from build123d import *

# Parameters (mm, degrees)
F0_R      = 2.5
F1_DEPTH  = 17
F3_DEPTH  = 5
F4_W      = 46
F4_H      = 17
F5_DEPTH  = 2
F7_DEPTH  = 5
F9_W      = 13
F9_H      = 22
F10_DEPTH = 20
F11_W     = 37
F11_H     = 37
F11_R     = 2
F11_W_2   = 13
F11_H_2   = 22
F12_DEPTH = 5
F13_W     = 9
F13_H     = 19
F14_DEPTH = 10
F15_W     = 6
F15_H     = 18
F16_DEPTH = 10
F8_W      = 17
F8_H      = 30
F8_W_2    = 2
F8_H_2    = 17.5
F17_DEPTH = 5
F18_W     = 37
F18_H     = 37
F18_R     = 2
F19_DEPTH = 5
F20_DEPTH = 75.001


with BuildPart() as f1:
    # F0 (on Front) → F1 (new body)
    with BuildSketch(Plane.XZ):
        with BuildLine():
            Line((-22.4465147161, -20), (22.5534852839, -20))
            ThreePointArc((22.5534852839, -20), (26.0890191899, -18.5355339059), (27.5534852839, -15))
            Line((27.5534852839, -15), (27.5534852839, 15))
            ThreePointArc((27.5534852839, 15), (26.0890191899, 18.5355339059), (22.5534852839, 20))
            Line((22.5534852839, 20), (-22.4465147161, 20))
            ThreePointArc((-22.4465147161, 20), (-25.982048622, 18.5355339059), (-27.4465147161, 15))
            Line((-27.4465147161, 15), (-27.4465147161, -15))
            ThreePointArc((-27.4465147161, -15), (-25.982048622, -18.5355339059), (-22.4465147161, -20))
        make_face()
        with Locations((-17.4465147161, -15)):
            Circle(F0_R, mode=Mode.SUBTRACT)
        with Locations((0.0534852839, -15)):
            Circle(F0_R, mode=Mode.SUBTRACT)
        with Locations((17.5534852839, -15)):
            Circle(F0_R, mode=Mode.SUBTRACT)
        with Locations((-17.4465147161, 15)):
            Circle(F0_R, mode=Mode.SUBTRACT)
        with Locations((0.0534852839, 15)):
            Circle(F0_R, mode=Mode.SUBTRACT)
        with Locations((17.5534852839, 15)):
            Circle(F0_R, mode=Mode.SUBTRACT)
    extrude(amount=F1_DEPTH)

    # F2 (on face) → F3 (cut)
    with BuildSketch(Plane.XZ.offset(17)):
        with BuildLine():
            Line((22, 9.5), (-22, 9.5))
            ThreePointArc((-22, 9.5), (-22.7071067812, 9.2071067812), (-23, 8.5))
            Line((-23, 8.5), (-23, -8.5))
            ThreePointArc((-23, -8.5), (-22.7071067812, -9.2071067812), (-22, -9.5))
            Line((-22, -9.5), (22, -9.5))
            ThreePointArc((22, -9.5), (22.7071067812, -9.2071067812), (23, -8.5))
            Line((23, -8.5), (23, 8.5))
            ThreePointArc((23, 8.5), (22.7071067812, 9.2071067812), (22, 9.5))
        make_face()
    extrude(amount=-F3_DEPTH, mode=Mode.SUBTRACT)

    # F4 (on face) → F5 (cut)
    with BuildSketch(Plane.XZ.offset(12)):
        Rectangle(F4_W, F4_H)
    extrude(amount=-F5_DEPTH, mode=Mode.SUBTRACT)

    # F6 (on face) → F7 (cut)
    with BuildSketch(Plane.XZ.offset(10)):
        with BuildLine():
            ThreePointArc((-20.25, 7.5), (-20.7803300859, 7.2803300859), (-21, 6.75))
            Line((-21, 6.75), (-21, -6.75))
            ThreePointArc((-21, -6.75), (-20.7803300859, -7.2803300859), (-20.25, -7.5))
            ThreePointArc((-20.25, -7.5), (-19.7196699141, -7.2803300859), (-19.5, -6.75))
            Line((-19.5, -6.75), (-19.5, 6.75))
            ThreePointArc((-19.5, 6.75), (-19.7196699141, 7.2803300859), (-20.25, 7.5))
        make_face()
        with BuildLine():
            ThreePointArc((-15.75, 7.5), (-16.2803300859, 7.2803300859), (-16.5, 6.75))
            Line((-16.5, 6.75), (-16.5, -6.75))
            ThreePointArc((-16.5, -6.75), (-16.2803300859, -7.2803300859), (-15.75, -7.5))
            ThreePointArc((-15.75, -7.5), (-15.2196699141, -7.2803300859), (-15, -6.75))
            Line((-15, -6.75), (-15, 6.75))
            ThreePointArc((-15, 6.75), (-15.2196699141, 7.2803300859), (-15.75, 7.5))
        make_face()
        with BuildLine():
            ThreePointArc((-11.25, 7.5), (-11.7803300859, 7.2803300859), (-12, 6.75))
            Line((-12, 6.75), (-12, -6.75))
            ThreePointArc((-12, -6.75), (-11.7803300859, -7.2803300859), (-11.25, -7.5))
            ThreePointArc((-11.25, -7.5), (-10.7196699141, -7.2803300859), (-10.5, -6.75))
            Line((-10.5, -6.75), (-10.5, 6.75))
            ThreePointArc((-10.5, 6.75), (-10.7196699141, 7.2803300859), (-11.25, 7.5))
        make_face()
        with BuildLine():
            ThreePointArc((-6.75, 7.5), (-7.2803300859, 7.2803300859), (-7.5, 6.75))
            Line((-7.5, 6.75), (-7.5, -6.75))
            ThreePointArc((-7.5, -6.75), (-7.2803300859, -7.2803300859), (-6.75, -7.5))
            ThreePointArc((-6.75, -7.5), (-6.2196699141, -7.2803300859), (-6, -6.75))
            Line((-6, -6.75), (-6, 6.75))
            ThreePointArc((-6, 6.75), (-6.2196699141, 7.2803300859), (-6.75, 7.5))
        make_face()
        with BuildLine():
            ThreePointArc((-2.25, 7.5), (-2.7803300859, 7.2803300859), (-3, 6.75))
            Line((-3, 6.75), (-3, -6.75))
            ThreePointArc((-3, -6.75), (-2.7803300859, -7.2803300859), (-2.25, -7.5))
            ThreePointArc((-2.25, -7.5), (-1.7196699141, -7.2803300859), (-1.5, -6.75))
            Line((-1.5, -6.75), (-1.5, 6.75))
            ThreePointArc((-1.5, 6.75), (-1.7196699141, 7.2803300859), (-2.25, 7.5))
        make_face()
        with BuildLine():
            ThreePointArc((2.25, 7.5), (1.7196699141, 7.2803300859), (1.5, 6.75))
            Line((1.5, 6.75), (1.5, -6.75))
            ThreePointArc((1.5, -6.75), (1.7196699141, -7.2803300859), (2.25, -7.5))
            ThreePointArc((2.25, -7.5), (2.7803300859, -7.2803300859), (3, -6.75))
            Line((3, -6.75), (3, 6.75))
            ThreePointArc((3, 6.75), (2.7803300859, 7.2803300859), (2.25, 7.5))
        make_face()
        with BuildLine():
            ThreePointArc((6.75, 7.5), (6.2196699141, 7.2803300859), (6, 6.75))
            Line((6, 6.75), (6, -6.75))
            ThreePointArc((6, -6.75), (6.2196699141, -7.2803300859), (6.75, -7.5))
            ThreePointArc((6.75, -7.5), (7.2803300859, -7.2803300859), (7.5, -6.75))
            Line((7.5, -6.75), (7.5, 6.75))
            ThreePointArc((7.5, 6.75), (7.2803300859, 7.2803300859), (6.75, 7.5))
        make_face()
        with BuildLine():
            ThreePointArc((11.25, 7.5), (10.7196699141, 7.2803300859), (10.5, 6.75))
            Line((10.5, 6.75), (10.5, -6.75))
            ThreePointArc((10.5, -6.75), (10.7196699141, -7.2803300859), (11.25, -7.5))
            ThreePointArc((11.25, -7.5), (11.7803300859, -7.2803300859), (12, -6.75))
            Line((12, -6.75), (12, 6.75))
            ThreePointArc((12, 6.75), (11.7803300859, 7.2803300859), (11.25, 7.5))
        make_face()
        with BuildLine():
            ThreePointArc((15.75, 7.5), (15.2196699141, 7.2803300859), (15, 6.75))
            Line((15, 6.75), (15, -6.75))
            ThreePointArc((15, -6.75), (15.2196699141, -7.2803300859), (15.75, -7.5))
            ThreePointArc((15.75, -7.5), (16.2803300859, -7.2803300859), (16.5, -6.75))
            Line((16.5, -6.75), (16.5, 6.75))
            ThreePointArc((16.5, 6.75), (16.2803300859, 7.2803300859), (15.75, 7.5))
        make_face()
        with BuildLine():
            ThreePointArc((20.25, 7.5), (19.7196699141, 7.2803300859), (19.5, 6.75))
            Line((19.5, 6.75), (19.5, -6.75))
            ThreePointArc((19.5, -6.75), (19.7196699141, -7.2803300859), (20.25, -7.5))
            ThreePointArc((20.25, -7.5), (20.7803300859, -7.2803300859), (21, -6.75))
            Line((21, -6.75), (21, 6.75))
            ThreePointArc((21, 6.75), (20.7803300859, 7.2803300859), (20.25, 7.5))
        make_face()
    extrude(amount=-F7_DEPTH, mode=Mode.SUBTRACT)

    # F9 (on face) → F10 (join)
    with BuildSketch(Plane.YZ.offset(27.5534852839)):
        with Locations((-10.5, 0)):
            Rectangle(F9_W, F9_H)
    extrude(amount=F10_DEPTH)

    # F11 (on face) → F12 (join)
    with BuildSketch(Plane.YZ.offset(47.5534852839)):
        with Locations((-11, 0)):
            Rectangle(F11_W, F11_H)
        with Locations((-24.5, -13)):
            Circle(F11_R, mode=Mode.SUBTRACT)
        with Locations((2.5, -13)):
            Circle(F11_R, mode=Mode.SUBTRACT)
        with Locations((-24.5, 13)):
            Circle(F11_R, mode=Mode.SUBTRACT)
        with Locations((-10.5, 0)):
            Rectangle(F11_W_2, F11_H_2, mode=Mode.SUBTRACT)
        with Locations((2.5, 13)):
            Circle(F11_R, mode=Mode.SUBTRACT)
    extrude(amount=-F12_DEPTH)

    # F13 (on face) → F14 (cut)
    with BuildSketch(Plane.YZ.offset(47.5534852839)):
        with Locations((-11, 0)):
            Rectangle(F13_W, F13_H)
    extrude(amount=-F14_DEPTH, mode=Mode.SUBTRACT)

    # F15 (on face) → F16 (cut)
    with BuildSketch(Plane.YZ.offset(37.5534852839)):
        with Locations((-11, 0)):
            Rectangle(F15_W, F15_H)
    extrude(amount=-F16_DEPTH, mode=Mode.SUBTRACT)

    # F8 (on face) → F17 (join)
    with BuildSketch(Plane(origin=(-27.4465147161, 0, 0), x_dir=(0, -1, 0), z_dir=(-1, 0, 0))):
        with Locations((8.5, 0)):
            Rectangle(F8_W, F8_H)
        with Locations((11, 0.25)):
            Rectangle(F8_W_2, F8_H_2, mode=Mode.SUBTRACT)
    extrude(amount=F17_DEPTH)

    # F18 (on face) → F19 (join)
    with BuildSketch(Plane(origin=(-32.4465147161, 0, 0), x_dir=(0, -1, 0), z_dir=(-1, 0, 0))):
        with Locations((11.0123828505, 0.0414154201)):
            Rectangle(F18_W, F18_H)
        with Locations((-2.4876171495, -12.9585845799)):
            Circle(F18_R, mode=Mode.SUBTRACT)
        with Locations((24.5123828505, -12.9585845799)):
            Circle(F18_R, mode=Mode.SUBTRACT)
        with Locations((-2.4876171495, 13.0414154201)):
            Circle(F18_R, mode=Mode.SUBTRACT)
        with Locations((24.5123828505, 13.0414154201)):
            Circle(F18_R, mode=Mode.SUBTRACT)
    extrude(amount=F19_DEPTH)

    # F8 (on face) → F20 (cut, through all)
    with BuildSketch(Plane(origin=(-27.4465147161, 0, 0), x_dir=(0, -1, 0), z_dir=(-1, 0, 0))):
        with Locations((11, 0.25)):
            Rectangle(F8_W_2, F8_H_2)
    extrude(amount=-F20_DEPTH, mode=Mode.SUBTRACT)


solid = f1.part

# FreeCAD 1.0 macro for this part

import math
import FreeCAD as App
import Part
import Sketcher

V = App.Vector
Q = App.Units.Quantity


def add_polygon(sketch, points):
    """Adds a closed chain of lines whose ends are joined by coincident constraints."""
    first, n = sketch.GeometryCount, len(points)
    for a, b in zip(points, points[1:] + points[:1]):
        sketch.addGeometry(Part.LineSegment(App.Vector(*a, 0), App.Vector(*b, 0)), False)
    for i in range(n):
        sketch.addConstraint(Sketcher.Constraint("Coincident", first + i, 2, first + (i + 1) % n, 1))

doc = App.newDocument("Part")
params = doc.addObject("Spreadsheet::Sheet", "Params")
for row, (alias, value) in enumerate([
    ("sketch1_diameter", "5 mm"),
    ("sketch1_radius", "5 mm"),
    ("sketch1_width", "45 mm"),
    ("sketch1_height", "30 mm"),
    ("pad1_length", "17 mm"),
    ("sketch2_radius", "1 mm"),
    ("sketch2_width", "44 mm"),
    ("sketch2_height", "17 mm"),
    ("pocket1_length", "5 mm"),
    ("sketch3_width", "46 mm"),
    ("sketch3_height", "17 mm"),
    ("pocket2_length", "2 mm"),
    ("sketch4_radius", "0.75 mm"),
    ("sketch4_height", "13.5 mm"),
    ("pocket3_length", "5 mm"),
    ("sketch5_width", "13 mm"),
    ("sketch5_height", "22 mm"),
    ("pad2_length", "20 mm"),
    ("sketch6_diameter", "4 mm"),
    ("sketch6_width", "37 mm"),
    ("sketch6_width2", "13 mm"),
    ("sketch6_height", "22 mm"),
    ("pad3_length", "5 mm"),
    ("sketch7_width", "9 mm"),
    ("sketch7_height", "19 mm"),
    ("pocket4_length", "10 mm"),
    ("sketch8_width", "6 mm"),
    ("sketch8_height", "18 mm"),
    ("pocket5_length", "10 mm"),
    ("sketch9_width", "17 mm"),
    ("sketch9_width2", "2 mm"),
    ("sketch9_height", "30 mm"),
    ("sketch9_height2", "17.5 mm"),
    ("pad4_length", "5 mm"),
    ("sketch10_diameter", "4 mm"),
    ("sketch10_width", "37 mm"),
    ("pad5_length", "5 mm"),
    ("sketch11_width", "2 mm"),
    ("sketch11_height", "17.5 mm"),
], start=1):
    params.set(f"A{row}", alias)
    params.set(f"B{row}", "=" + value)
    params.setAlias(f"B{row}", alias)

body = doc.addObject("PartDesign::Body", "Body")

sketch1 = body.newObject("Sketcher::SketchObject", "Sketch")
sketch1.AttachmentSupport = (doc.getObject("XZ_Plane"), [""])
sketch1.MapMode = "FlatFace"
sketch1.addGeometry([
    Part.LineSegment(V(-22.4, -20, 0), V(22.6, -20, 0)),
    Part.ArcOfCircle(Part.Circle(V(22.6, -15, 0), V(0, 0, 1), 5), math.radians(-90), math.radians(0)),
    Part.LineSegment(V(27.6, -15, 0), V(27.6, 15, 0)),
    Part.ArcOfCircle(Part.Circle(V(22.6, 15, 0), V(0, 0, 1), 5), math.radians(0), math.radians(90)),
    Part.LineSegment(V(22.6, 20, 0), V(-22.4, 20, 0)),
    Part.ArcOfCircle(Part.Circle(V(-22.4, 15, 0), V(0, 0, 1), 5), math.radians(90), math.radians(180)),
    Part.LineSegment(V(-27.4, 15, 0), V(-27.4, -15, 0)),
    Part.ArcOfCircle(Part.Circle(V(-22.4, -15, 0), V(0, 0, 1), 5), math.radians(180), math.radians(270)),
    Part.Circle(V(-17.4, -15, 0), V(0, 0, 1), 2.5),
    Part.Circle(V(0.1, -15, 0), V(0, 0, 1), 2.5),
    Part.Circle(V(17.6, -15, 0), V(0, 0, 1), 2.5),
    Part.Circle(V(-17.4, 15, 0), V(0, 0, 1), 2.5),
    Part.Circle(V(0.1, 15, 0), V(0, 0, 1), 2.5),
    Part.Circle(V(17.6, 15, 0), V(0, 0, 1), 2.5),
], False)
sketch1.addConstraint([
    Sketcher.Constraint("Tangent", 0, 2, 1, 1),
    Sketcher.Constraint("Tangent", 1, 2, 2, 1),
    Sketcher.Constraint("Tangent", 2, 2, 3, 1),
    Sketcher.Constraint("Tangent", 3, 2, 4, 1),
    Sketcher.Constraint("Tangent", 4, 2, 5, 1),
    Sketcher.Constraint("Tangent", 5, 2, 6, 1),
    Sketcher.Constraint("Tangent", 6, 2, 7, 1),
    Sketcher.Constraint("Tangent", 7, 2, 0, 1),
    Sketcher.Constraint("Horizontal", 0),
    Sketcher.Constraint("Vertical", 2),
    Sketcher.Constraint("Horizontal", 4),
    Sketcher.Constraint("Vertical", 6),
    Sketcher.Constraint("Equal", 1, 3),
    Sketcher.Constraint("Equal", 3, 5),
    Sketcher.Constraint("Equal", 5, 7),
    Sketcher.Constraint("Equal", 8, 9),
    Sketcher.Constraint("Equal", 9, 10),
    Sketcher.Constraint("Equal", 10, 11),
    Sketcher.Constraint("Equal", 11, 12),
    Sketcher.Constraint("Equal", 12, 13),
    Sketcher.Constraint("Symmetric", 8, 3, 11, 3, -1),
    Sketcher.Constraint("Symmetric", 9, 3, 12, 3, -1),
    Sketcher.Constraint("Symmetric", 10, 3, 13, 3, -1),
    Sketcher.Constraint("Horizontal", 7, 3, 8, 3),
    Sketcher.Constraint("Horizontal", 8, 3, 9, 3),
    Sketcher.Constraint("Horizontal", 9, 3, 10, 3),
    Sketcher.Constraint("Horizontal", 5, 3, 11, 3),
    Sketcher.Constraint("Diameter", 8, Q("5 mm")),
    Sketcher.Constraint("Radius", 1, Q("5 mm")),
    Sketcher.Constraint("DistanceX", 0, 1, 0, 2, Q("45 mm")),
    Sketcher.Constraint("DistanceY", 2, 1, 2, 2, Q("30 mm")),
    Sketcher.Constraint("DistanceX", 7, 3, 8, 3, Q("5 mm")),
    Sketcher.Constraint("DistanceX", 10, 3, 1, 3, Q("5 mm")),
    Sketcher.Constraint("DistanceX", 8, 3, 9, 3, Q("17.5 mm")),
    Sketcher.Constraint("DistanceX", -1, 1, 1, 3, Q("22.553485 mm")),
])
sketch1.setExpression("Constraints[27]", "Params.sketch1_diameter")
sketch1.setExpression("Constraints[28]", "Params.sketch1_radius")
sketch1.setExpression("Constraints[29]", "Params.sketch1_width")
sketch1.setExpression("Constraints[30]", "Params.sketch1_height")
pad1 = body.newObject("PartDesign::Pad", "Pad")
pad1.Profile = sketch1
pad1.setExpression("Length", "Params.pad1_length")

sketch2 = body.newObject("Sketcher::SketchObject", "Sketch001")
sketch2.AttachmentSupport = (doc.getObject("XZ_Plane"), [""])
sketch2.MapMode = "FlatFace"
sketch2.AttachmentOffset = App.Placement(V(0, 0, 17), App.Rotation())
sketch2.addGeometry([
    Part.LineSegment(V(22, 9.5, 0), V(-22, 9.5, 0)),
    Part.ArcOfCircle(Part.Circle(V(-22, 8.5, 0), V(0, 0, 1), 1), math.radians(90), math.radians(180)),
    Part.LineSegment(V(-23, 8.5, 0), V(-23, -8.5, 0)),
    Part.ArcOfCircle(Part.Circle(V(-22, -8.5, 0), V(0, 0, 1), 1), math.radians(180), math.radians(270)),
    Part.LineSegment(V(-22, -9.5, 0), V(22, -9.5, 0)),
    Part.ArcOfCircle(Part.Circle(V(22, -8.5, 0), V(0, 0, 1), 1), math.radians(-90), math.radians(0)),
    Part.LineSegment(V(23, -8.5, 0), V(23, 8.5, 0)),
    Part.ArcOfCircle(Part.Circle(V(22, 8.5, 0), V(0, 0, 1), 1), math.radians(0), math.radians(90)),
], False)
sketch2.addConstraint([
    Sketcher.Constraint("Tangent", 0, 2, 1, 1),
    Sketcher.Constraint("Tangent", 1, 2, 2, 1),
    Sketcher.Constraint("Tangent", 2, 2, 3, 1),
    Sketcher.Constraint("Tangent", 3, 2, 4, 1),
    Sketcher.Constraint("Tangent", 4, 2, 5, 1),
    Sketcher.Constraint("Tangent", 5, 2, 6, 1),
    Sketcher.Constraint("Tangent", 6, 2, 7, 1),
    Sketcher.Constraint("Tangent", 7, 2, 0, 1),
    Sketcher.Constraint("Horizontal", 0),
    Sketcher.Constraint("Vertical", 2),
    Sketcher.Constraint("Horizontal", 4),
    Sketcher.Constraint("Vertical", 6),
    Sketcher.Constraint("Equal", 1, 3),
    Sketcher.Constraint("Equal", 3, 5),
    Sketcher.Constraint("Equal", 5, 7),
    Sketcher.Constraint("Symmetric", 1, 3, 5, 3, -1, 1),
    Sketcher.Constraint("Radius", 1, Q("1 mm")),
    Sketcher.Constraint("DistanceX", 0, 2, 0, 1, Q("44 mm")),
    Sketcher.Constraint("DistanceY", 2, 2, 2, 1, Q("17 mm")),
])
sketch2.setExpression("Constraints[16]", "Params.sketch2_radius")
sketch2.setExpression("Constraints[17]", "Params.sketch2_width")
sketch2.setExpression("Constraints[18]", "Params.sketch2_height")
pocket1 = body.newObject("PartDesign::Pocket", "Pocket")
pocket1.Profile = sketch2
pocket1.setExpression("Length", "Params.pocket1_length")

sketch3 = body.newObject("Sketcher::SketchObject", "Sketch002")
sketch3.AttachmentSupport = (doc.getObject("XZ_Plane"), [""])
sketch3.MapMode = "FlatFace"
sketch3.AttachmentOffset = App.Placement(V(0, 0, 12), App.Rotation())
add_polygon(sketch3, [(-23, 8), (-23, -8), (23, -8), (23, 8)])
sketch3.addConstraint([
    Sketcher.Constraint("Vertical", 0),
    Sketcher.Constraint("Horizontal", 1),
    Sketcher.Constraint("Vertical", 2),
    Sketcher.Constraint("Horizontal", 3),
    Sketcher.Constraint("Symmetric", 0, 2, 2, 2, -1, 1),
    Sketcher.Constraint("DistanceX", 1, 1, 1, 2, Q("46 mm")),
    Sketcher.Constraint("DistanceY", 0, 2, 0, 1, Q("17 mm")),
])
sketch3.setExpression("Constraints[9]", "Params.sketch3_width")
sketch3.setExpression("Constraints[10]", "Params.sketch3_height")
pocket2 = body.newObject("PartDesign::Pocket", "Pocket001")
pocket2.Profile = sketch3
pocket2.setExpression("Length", "Params.pocket2_length")

sketch4 = body.newObject("Sketcher::SketchObject", "Sketch003")
sketch4.AttachmentSupport = (doc.getObject("XZ_Plane"), [""])
sketch4.MapMode = "FlatFace"
sketch4.AttachmentOffset = App.Placement(V(0, 0, 10), App.Rotation())
sketch4.addGeometry([
    Part.ArcOfCircle(Part.Circle(V(-20.2, 6.8, 0), V(0, 0, 1), 0.8), math.radians(90), math.radians(180)),
    Part.LineSegment(V(-21, 6.8, 0), V(-21, -6.8, 0)),
    Part.ArcOfCircle(Part.Circle(V(-20.2, -6.8, 0), V(0, 0, 1), 0.8), math.radians(180), math.radians(270)),
    Part.ArcOfCircle(Part.Circle(V(-20.2, -6.8, 0), V(0, 0, 1), 0.8), math.radians(-90), math.radians(0)),
    Part.LineSegment(V(-19.5, -6.8, 0), V(-19.5, 6.8, 0)),
    Part.ArcOfCircle(Part.Circle(V(-20.2, 6.8, 0), V(0, 0, 1), 0.8), math.radians(0), math.radians(90)),
    Part.ArcOfCircle(Part.Circle(V(-15.8, 6.8, 0), V(0, 0, 1), 0.8), math.radians(90), math.radians(180)),
    Part.LineSegment(V(-16.5, 6.8, 0), V(-16.5, -6.8, 0)),
    Part.ArcOfCircle(Part.Circle(V(-15.8, -6.8, 0), V(0, 0, 1), 0.8), math.radians(180), math.radians(270)),
    Part.ArcOfCircle(Part.Circle(V(-15.8, -6.8, 0), V(0, 0, 1), 0.8), math.radians(-90), math.radians(0)),
    Part.LineSegment(V(-15, -6.8, 0), V(-15, 6.8, 0)),
    Part.ArcOfCircle(Part.Circle(V(-15.8, 6.8, 0), V(0, 0, 1), 0.8), math.radians(0), math.radians(90)),
    Part.ArcOfCircle(Part.Circle(V(-11.2, 6.8, 0), V(0, 0, 1), 0.8), math.radians(90), math.radians(180)),
    Part.LineSegment(V(-12, 6.8, 0), V(-12, -6.8, 0)),
    Part.ArcOfCircle(Part.Circle(V(-11.2, -6.8, 0), V(0, 0, 1), 0.8), math.radians(180), math.radians(270)),
    Part.ArcOfCircle(Part.Circle(V(-11.2, -6.8, 0), V(0, 0, 1), 0.8), math.radians(-90), math.radians(0)),
    Part.LineSegment(V(-10.5, -6.8, 0), V(-10.5, 6.8, 0)),
    Part.ArcOfCircle(Part.Circle(V(-11.2, 6.8, 0), V(0, 0, 1), 0.8), math.radians(0), math.radians(90)),
    Part.ArcOfCircle(Part.Circle(V(-6.8, 6.8, 0), V(0, 0, 1), 0.8), math.radians(90), math.radians(180)),
    Part.LineSegment(V(-7.5, 6.8, 0), V(-7.5, -6.8, 0)),
    Part.ArcOfCircle(Part.Circle(V(-6.8, -6.8, 0), V(0, 0, 1), 0.8), math.radians(180), math.radians(270)),
    Part.ArcOfCircle(Part.Circle(V(-6.8, -6.8, 0), V(0, 0, 1), 0.8), math.radians(-90), math.radians(0)),
    Part.LineSegment(V(-6, -6.8, 0), V(-6, 6.8, 0)),
    Part.ArcOfCircle(Part.Circle(V(-6.8, 6.8, 0), V(0, 0, 1), 0.8), math.radians(0), math.radians(90)),
    Part.ArcOfCircle(Part.Circle(V(-2.2, 6.8, 0), V(0, 0, 1), 0.8), math.radians(90), math.radians(180)),
    Part.LineSegment(V(-3, 6.8, 0), V(-3, -6.8, 0)),
    Part.ArcOfCircle(Part.Circle(V(-2.2, -6.8, 0), V(0, 0, 1), 0.8), math.radians(180), math.radians(270)),
    Part.ArcOfCircle(Part.Circle(V(-2.2, -6.8, 0), V(0, 0, 1), 0.8), math.radians(-90), math.radians(0)),
    Part.LineSegment(V(-1.5, -6.8, 0), V(-1.5, 6.8, 0)),
    Part.ArcOfCircle(Part.Circle(V(-2.2, 6.8, 0), V(0, 0, 1), 0.8), math.radians(0), math.radians(90)),
    Part.ArcOfCircle(Part.Circle(V(2.2, 6.8, 0), V(0, 0, 1), 0.8), math.radians(90), math.radians(180)),
    Part.LineSegment(V(1.5, 6.8, 0), V(1.5, -6.8, 0)),
    Part.ArcOfCircle(Part.Circle(V(2.2, -6.8, 0), V(0, 0, 1), 0.8), math.radians(180), math.radians(270)),
    Part.ArcOfCircle(Part.Circle(V(2.2, -6.8, 0), V(0, 0, 1), 0.8), math.radians(-90), math.radians(0)),
    Part.LineSegment(V(3, -6.8, 0), V(3, 6.8, 0)),
    Part.ArcOfCircle(Part.Circle(V(2.2, 6.8, 0), V(0, 0, 1), 0.8), math.radians(0), math.radians(90)),
    Part.ArcOfCircle(Part.Circle(V(6.8, 6.8, 0), V(0, 0, 1), 0.8), math.radians(90), math.radians(180)),
    Part.LineSegment(V(6, 6.8, 0), V(6, -6.8, 0)),
    Part.ArcOfCircle(Part.Circle(V(6.8, -6.8, 0), V(0, 0, 1), 0.8), math.radians(180), math.radians(270)),
    Part.ArcOfCircle(Part.Circle(V(6.8, -6.8, 0), V(0, 0, 1), 0.8), math.radians(-90), math.radians(0)),
    Part.LineSegment(V(7.5, -6.8, 0), V(7.5, 6.8, 0)),
    Part.ArcOfCircle(Part.Circle(V(6.8, 6.8, 0), V(0, 0, 1), 0.8), math.radians(0), math.radians(90)),
    Part.ArcOfCircle(Part.Circle(V(11.2, 6.8, 0), V(0, 0, 1), 0.8), math.radians(90), math.radians(180)),
    Part.LineSegment(V(10.5, 6.8, 0), V(10.5, -6.8, 0)),
    Part.ArcOfCircle(Part.Circle(V(11.2, -6.8, 0), V(0, 0, 1), 0.8), math.radians(180), math.radians(270)),
    Part.ArcOfCircle(Part.Circle(V(11.2, -6.8, 0), V(0, 0, 1), 0.8), math.radians(-90), math.radians(0)),
    Part.LineSegment(V(12, -6.8, 0), V(12, 6.8, 0)),
    Part.ArcOfCircle(Part.Circle(V(11.2, 6.8, 0), V(0, 0, 1), 0.8), math.radians(0), math.radians(90)),
    Part.ArcOfCircle(Part.Circle(V(15.8, 6.8, 0), V(0, 0, 1), 0.8), math.radians(90), math.radians(180)),
    Part.LineSegment(V(15, 6.8, 0), V(15, -6.8, 0)),
    Part.ArcOfCircle(Part.Circle(V(15.8, -6.8, 0), V(0, 0, 1), 0.8), math.radians(180), math.radians(270)),
    Part.ArcOfCircle(Part.Circle(V(15.8, -6.8, 0), V(0, 0, 1), 0.8), math.radians(-90), math.radians(0)),
    Part.LineSegment(V(16.5, -6.8, 0), V(16.5, 6.8, 0)),
    Part.ArcOfCircle(Part.Circle(V(15.8, 6.8, 0), V(0, 0, 1), 0.8), math.radians(0), math.radians(90)),
    Part.ArcOfCircle(Part.Circle(V(20.2, 6.8, 0), V(0, 0, 1), 0.8), math.radians(90), math.radians(180)),
    Part.LineSegment(V(19.5, 6.8, 0), V(19.5, -6.8, 0)),
    Part.ArcOfCircle(Part.Circle(V(20.2, -6.8, 0), V(0, 0, 1), 0.8), math.radians(180), math.radians(270)),
    Part.ArcOfCircle(Part.Circle(V(20.2, -6.8, 0), V(0, 0, 1), 0.8), math.radians(-90), math.radians(0)),
    Part.LineSegment(V(21, -6.8, 0), V(21, 6.8, 0)),
    Part.ArcOfCircle(Part.Circle(V(20.2, 6.8, 0), V(0, 0, 1), 0.8), math.radians(0), math.radians(90)),
], False)
sketch4.addConstraint([
    Sketcher.Constraint("Tangent", 0, 2, 1, 1),
    Sketcher.Constraint("Tangent", 1, 2, 2, 1),
    Sketcher.Constraint("Tangent", 2, 2, 3, 1),
    Sketcher.Constraint("Tangent", 3, 2, 4, 1),
    Sketcher.Constraint("Tangent", 4, 2, 5, 1),
    Sketcher.Constraint("Tangent", 5, 2, 0, 1),
    Sketcher.Constraint("Tangent", 6, 2, 7, 1),
    Sketcher.Constraint("Tangent", 7, 2, 8, 1),
    Sketcher.Constraint("Tangent", 8, 2, 9, 1),
    Sketcher.Constraint("Tangent", 9, 2, 10, 1),
    Sketcher.Constraint("Tangent", 10, 2, 11, 1),
    Sketcher.Constraint("Tangent", 11, 2, 6, 1),
    Sketcher.Constraint("Tangent", 12, 2, 13, 1),
    Sketcher.Constraint("Tangent", 13, 2, 14, 1),
    Sketcher.Constraint("Tangent", 14, 2, 15, 1),
    Sketcher.Constraint("Tangent", 15, 2, 16, 1),
    Sketcher.Constraint("Tangent", 16, 2, 17, 1),
    Sketcher.Constraint("Tangent", 17, 2, 12, 1),
    Sketcher.Constraint("Tangent", 18, 2, 19, 1),
    Sketcher.Constraint("Tangent", 19, 2, 20, 1),
    Sketcher.Constraint("Tangent", 20, 2, 21, 1),
    Sketcher.Constraint("Tangent", 21, 2, 22, 1),
    Sketcher.Constraint("Tangent", 22, 2, 23, 1),
    Sketcher.Constraint("Tangent", 23, 2, 18, 1),
    Sketcher.Constraint("Tangent", 24, 2, 25, 1),
    Sketcher.Constraint("Tangent", 25, 2, 26, 1),
    Sketcher.Constraint("Tangent", 26, 2, 27, 1),
    Sketcher.Constraint("Tangent", 27, 2, 28, 1),
    Sketcher.Constraint("Tangent", 28, 2, 29, 1),
    Sketcher.Constraint("Tangent", 29, 2, 24, 1),
    Sketcher.Constraint("Tangent", 30, 2, 31, 1),
    Sketcher.Constraint("Tangent", 31, 2, 32, 1),
    Sketcher.Constraint("Tangent", 32, 2, 33, 1),
    Sketcher.Constraint("Tangent", 33, 2, 34, 1),
    Sketcher.Constraint("Tangent", 34, 2, 35, 1),
    Sketcher.Constraint("Tangent", 35, 2, 30, 1),
    Sketcher.Constraint("Tangent", 36, 2, 37, 1),
    Sketcher.Constraint("Tangent", 37, 2, 38, 1),
    Sketcher.Constraint("Tangent", 38, 2, 39, 1),
    Sketcher.Constraint("Tangent", 39, 2, 40, 1),
    Sketcher.Constraint("Tangent", 40, 2, 41, 1),
    Sketcher.Constraint("Tangent", 41, 2, 36, 1),
    Sketcher.Constraint("Tangent", 42, 2, 43, 1),
    Sketcher.Constraint("Tangent", 43, 2, 44, 1),
    Sketcher.Constraint("Tangent", 44, 2, 45, 1),
    Sketcher.Constraint("Tangent", 45, 2, 46, 1),
    Sketcher.Constraint("Tangent", 46, 2, 47, 1),
    Sketcher.Constraint("Tangent", 47, 2, 42, 1),
    Sketcher.Constraint("Tangent", 48, 2, 49, 1),
    Sketcher.Constraint("Tangent", 49, 2, 50, 1),
    Sketcher.Constraint("Tangent", 50, 2, 51, 1),
    Sketcher.Constraint("Tangent", 51, 2, 52, 1),
    Sketcher.Constraint("Tangent", 52, 2, 53, 1),
    Sketcher.Constraint("Tangent", 53, 2, 48, 1),
    Sketcher.Constraint("Tangent", 54, 2, 55, 1),
    Sketcher.Constraint("Tangent", 55, 2, 56, 1),
    Sketcher.Constraint("Tangent", 56, 2, 57, 1),
    Sketcher.Constraint("Tangent", 57, 2, 58, 1),
    Sketcher.Constraint("Tangent", 58, 2, 59, 1),
    Sketcher.Constraint("Tangent", 59, 2, 54, 1),
    Sketcher.Constraint("Vertical", 1),
    Sketcher.Constraint("Vertical", 4),
    Sketcher.Constraint("Vertical", 7),
    Sketcher.Constraint("Vertical", 10),
    Sketcher.Constraint("Vertical", 13),
    Sketcher.Constraint("Vertical", 16),
    Sketcher.Constraint("Vertical", 19),
    Sketcher.Constraint("Vertical", 22),
    Sketcher.Constraint("Vertical", 25),
    Sketcher.Constraint("Vertical", 28),
    Sketcher.Constraint("Vertical", 31),
    Sketcher.Constraint("Vertical", 34),
    Sketcher.Constraint("Vertical", 37),
    Sketcher.Constraint("Vertical", 40),
    Sketcher.Constraint("Vertical", 43),
    Sketcher.Constraint("Vertical", 46),
    Sketcher.Constraint("Vertical", 49),
    Sketcher.Constraint("Vertical", 52),
    Sketcher.Constraint("Vertical", 55),
    Sketcher.Constraint("Vertical", 58),
    Sketcher.Constraint("Equal", 0, 2),
    Sketcher.Constraint("Equal", 2, 3),
    Sketcher.Constraint("Equal", 5, 6),
    Sketcher.Constraint("Equal", 6, 8),
    Sketcher.Constraint("Equal", 8, 9),
    Sketcher.Constraint("Equal", 11, 12),
    Sketcher.Constraint("Equal", 12, 14),
    Sketcher.Constraint("Equal", 14, 15),
    Sketcher.Constraint("Equal", 17, 18),
    Sketcher.Constraint("Equal", 18, 20),
    Sketcher.Constraint("Equal", 20, 21),
    Sketcher.Constraint("Equal", 23, 24),
    Sketcher.Constraint("Equal", 24, 26),
    Sketcher.Constraint("Equal", 26, 27),
    Sketcher.Constraint("Equal", 29, 30),
    Sketcher.Constraint("Equal", 30, 32),
    Sketcher.Constraint("Equal", 32, 33),
    Sketcher.Constraint("Equal", 35, 36),
    Sketcher.Constraint("Equal", 36, 38),
    Sketcher.Constraint("Equal", 38, 39),
    Sketcher.Constraint("Equal", 41, 42),
    Sketcher.Constraint("Equal", 42, 44),
    Sketcher.Constraint("Equal", 44, 45),
    Sketcher.Constraint("Equal", 47, 48),
    Sketcher.Constraint("Equal", 48, 50),
    Sketcher.Constraint("Equal", 50, 51),
    Sketcher.Constraint("Equal", 53, 54),
    Sketcher.Constraint("Equal", 54, 56),
    Sketcher.Constraint("Equal", 56, 57),
    Sketcher.Constraint("Symmetric", 26, 3, 30, 3, -1, 1),
    Sketcher.Constraint("Symmetric", 20, 3, 36, 3, -1, 1),
    Sketcher.Constraint("Symmetric", 14, 3, 42, 3, -1, 1),
    Sketcher.Constraint("Symmetric", 8, 3, 48, 3, -1, 1),
    Sketcher.Constraint("Symmetric", 2, 3, 54, 3, -1, 1),
    Sketcher.Constraint("Symmetric", 29, 2, 32, 2, -1, 1),
    Sketcher.Constraint("Symmetric", 23, 2, 38, 2, -1, 1),
    Sketcher.Constraint("Symmetric", 17, 2, 44, 2, -1, 1),
    Sketcher.Constraint("Symmetric", 11, 2, 50, 2, -1, 1),
    Sketcher.Constraint("Symmetric", 5, 2, 56, 2, -1, 1),
    Sketcher.Constraint("Symmetric", 26, 2, 32, 2, -2),
    Sketcher.Constraint("Symmetric", 20, 2, 38, 2, -2),
    Sketcher.Constraint("Symmetric", 14, 2, 44, 2, -2),
    Sketcher.Constraint("Symmetric", 8, 2, 50, 2, -2),
    Sketcher.Constraint("Symmetric", 2, 2, 56, 2, -2),
    Sketcher.Constraint("Horizontal", 5, 3, 6, 3),
    Sketcher.Constraint("Horizontal", 11, 3, 12, 3),
    Sketcher.Constraint("Horizontal", 17, 3, 18, 3),
    Sketcher.Constraint("Horizontal", 23, 3, 24, 3),
    Sketcher.Constraint("Vertical", 5, 3, 2, 2),
    Sketcher.Constraint("Vertical", 11, 3, 8, 2),
    Sketcher.Constraint("Vertical", 17, 3, 14, 2),
    Sketcher.Constraint("Vertical", 23, 3, 20, 2),
    Sketcher.Constraint("Vertical", 29, 3, 26, 2),
    Sketcher.Constraint("Vertical", 32, 2, 35, 2),
    Sketcher.Constraint("Vertical", 38, 2, 41, 2),
    Sketcher.Constraint("Vertical", 44, 2, 47, 2),
    Sketcher.Constraint("Vertical", 50, 2, 53, 2),
    Sketcher.Constraint("Vertical", 56, 2, 59, 2),
    Sketcher.Constraint("Radius", 0, Q("0.75 mm")),
    Sketcher.Constraint("DistanceY", 1, 2, 1, 1, Q("13.5 mm")),
    Sketcher.Constraint("DistanceX", 0, 2, -1, 1, Q("21 mm")),
    Sketcher.Constraint("DistanceX", 9, 2, -1, 1, Q("15 mm")),
    Sketcher.Constraint("DistanceX", 12, 2, -1, 1, Q("12 mm")),
    Sketcher.Constraint("DistanceX", 21, 2, -1, 1, Q("6 mm")),
    Sketcher.Constraint("DistanceX", 24, 2, -1, 1, Q("3 mm")),
])
sketch4.setExpression("Constraints[138]", "Params.sketch4_radius")
sketch4.setExpression("Constraints[139]", "Params.sketch4_height")
pocket3 = body.newObject("PartDesign::Pocket", "Pocket002")
pocket3.Profile = sketch4
pocket3.setExpression("Length", "Params.pocket3_length")

sketch5 = body.newObject("Sketcher::SketchObject", "Sketch004")
sketch5.AttachmentSupport = (doc.getObject("YZ_Plane"), [""])
sketch5.MapMode = "FlatFace"
sketch5.AttachmentOffset = App.Placement(V(0, 0, 27.553485), App.Rotation())
add_polygon(sketch5, [(-17, 11), (-17, -11), (-4, -11), (-4, 11)])
sketch5.addConstraint([
    Sketcher.Constraint("Vertical", 0),
    Sketcher.Constraint("Horizontal", 1),
    Sketcher.Constraint("Vertical", 2),
    Sketcher.Constraint("Horizontal", 3),
    Sketcher.Constraint("DistanceX", 1, 1, 1, 2, Q("13 mm")),
    Sketcher.Constraint("DistanceY", 0, 2, 0, 1, Q("22 mm")),
    Sketcher.Constraint("DistanceX", 0, 2, -1, 1, Q("17 mm")),
    Sketcher.Constraint("DistanceY", 0, 2, -1, 1, Q("11 mm")),
])
sketch5.setExpression("Constraints[8]", "Params.sketch5_width")
sketch5.setExpression("Constraints[9]", "Params.sketch5_height")
pad2 = body.newObject("PartDesign::Pad", "Pad001")
pad2.Profile = sketch5
pad2.setExpression("Length", "Params.pad2_length")

sketch6 = body.newObject("Sketcher::SketchObject", "Sketch005")
sketch6.AttachmentSupport = (doc.getObject("YZ_Plane"), [""])
sketch6.MapMode = "FlatFace"
sketch6.AttachmentOffset = App.Placement(V(0, 0, 47.553485), App.Rotation())
add_polygon(sketch6, [(-29.5, 18.5), (-29.5, -18.5), (7.5, -18.5), (7.5, 18.5)])
sketch6.addGeometry(Part.Circle(V(-24.5, -13, 0), V(0, 0, 1), 2), False)
sketch6.addGeometry(Part.Circle(V(2.5, -13, 0), V(0, 0, 1), 2), False)
sketch6.addGeometry(Part.Circle(V(-24.5, 13, 0), V(0, 0, 1), 2), False)
add_polygon(sketch6, [(-4, -11), (-17, -11), (-17, 11), (-4, 11)])
sketch6.addGeometry(Part.Circle(V(2.5, 13, 0), V(0, 0, 1), 2), False)
sketch6.addConstraint([
    Sketcher.Constraint("Vertical", 0),
    Sketcher.Constraint("Horizontal", 1),
    Sketcher.Constraint("Vertical", 2),
    Sketcher.Constraint("Horizontal", 3),
    Sketcher.Constraint("Horizontal", 7),
    Sketcher.Constraint("Vertical", 8),
    Sketcher.Constraint("Horizontal", 9),
    Sketcher.Constraint("Vertical", 10),
    Sketcher.Constraint("Equal", 4, 5),
    Sketcher.Constraint("Equal", 5, 6),
    Sketcher.Constraint("Equal", 6, 11),
    Sketcher.Constraint("Symmetric", 4, 3, 6, 3, -1),
    Sketcher.Constraint("Symmetric", 5, 3, 11, 3, -1),
    Sketcher.Constraint("Horizontal", 4, 3, 5, 3),
    Sketcher.Constraint("Equal", 3, 0),
    Sketcher.Constraint("Diameter", 4, Q("4 mm")),
    Sketcher.Constraint("DistanceX", 1, 1, 1, 2, Q("37 mm")),
    Sketcher.Constraint("DistanceX", 7, 2, 7, 1, Q("13 mm")),
    Sketcher.Constraint("DistanceY", 8, 1, 8, 2, Q("22 mm")),
    Sketcher.Constraint("DistanceY", 4, 3, -1, 1, Q("13 mm")),
    Sketcher.Constraint("DistanceX", 7, 2, -1, 1, Q("17 mm")),
    Sketcher.Constraint("DistanceY", 7, 2, -1, 1, Q("11 mm")),
    Sketcher.Constraint("DistanceX", 4, 3, 5, 3, Q("27 mm")),
    Sketcher.Constraint("DistanceX", 0, 2, 4, 3, Q("5 mm")),
    Sketcher.Constraint("DistanceX", 4, 3, -1, 1, Q("24.5 mm")),
    Sketcher.Constraint("DistanceY", 0, 2, -1, 1, Q("18.5 mm")),
])
sketch6.setExpression("Constraints[23]", "Params.sketch6_diameter")
sketch6.setExpression("Constraints[24]", "Params.sketch6_width")
sketch6.setExpression("Constraints[25]", "Params.sketch6_width2")
sketch6.setExpression("Constraints[26]", "Params.sketch6_height")
pad3 = body.newObject("PartDesign::Pad", "Pad002")
pad3.Profile = sketch6
pad3.setExpression("Length", "Params.pad3_length")
pad3.Reversed = True

sketch7 = body.newObject("Sketcher::SketchObject", "Sketch006")
sketch7.AttachmentSupport = (doc.getObject("YZ_Plane"), [""])
sketch7.MapMode = "FlatFace"
sketch7.AttachmentOffset = App.Placement(V(0, 0, 47.553485), App.Rotation())
add_polygon(sketch7, [(-16, 10), (-16, -10), (-6, -10), (-6, 10)])
sketch7.addConstraint([
    Sketcher.Constraint("Vertical", 0),
    Sketcher.Constraint("Horizontal", 1),
    Sketcher.Constraint("Vertical", 2),
    Sketcher.Constraint("Horizontal", 3),
    Sketcher.Constraint("DistanceX", 1, 1, 1, 2, Q("9 mm")),
    Sketcher.Constraint("DistanceY", 0, 2, 0, 1, Q("19 mm")),
    Sketcher.Constraint("DistanceX", 0, 2, -1, 1, Q("15.5 mm")),
    Sketcher.Constraint("DistanceY", 0, 2, -1, 1, Q("9.5 mm")),
])
sketch7.setExpression("Constraints[8]", "Params.sketch7_width")
sketch7.setExpression("Constraints[9]", "Params.sketch7_height")
pocket4 = body.newObject("PartDesign::Pocket", "Pocket003")
pocket4.Profile = sketch7
pocket4.setExpression("Length", "Params.pocket4_length")

sketch8 = body.newObject("Sketcher::SketchObject", "Sketch007")
sketch8.AttachmentSupport = (doc.getObject("YZ_Plane"), [""])
sketch8.MapMode = "FlatFace"
sketch8.AttachmentOffset = App.Placement(V(0, 0, 37.553485), App.Rotation())
add_polygon(sketch8, [(-14, 9), (-14, -9), (-8, -9), (-8, 9)])
sketch8.addConstraint([
    Sketcher.Constraint("Vertical", 0),
    Sketcher.Constraint("Horizontal", 1),
    Sketcher.Constraint("Vertical", 2),
    Sketcher.Constraint("Horizontal", 3),
    Sketcher.Constraint("DistanceX", 1, 1, 1, 2, Q("6 mm")),
    Sketcher.Constraint("DistanceY", 0, 2, 0, 1, Q("18 mm")),
    Sketcher.Constraint("DistanceX", 0, 2, -1, 1, Q("14 mm")),
    Sketcher.Constraint("DistanceY", 0, 2, -1, 1, Q("9 mm")),
])
sketch8.setExpression("Constraints[8]", "Params.sketch8_width")
sketch8.setExpression("Constraints[9]", "Params.sketch8_height")
pocket5 = body.newObject("PartDesign::Pocket", "Pocket004")
pocket5.Profile = sketch8
pocket5.setExpression("Length", "Params.pocket5_length")

sketch9 = body.newObject("Sketcher::SketchObject", "Sketch008")
sketch9.AttachmentSupport = (doc.getObject("YZ_Plane"), [""])
sketch9.MapMode = "FlatFace"
sketch9.AttachmentOffset = App.Placement(V(0, 0, -27.446515), App.Rotation())
add_polygon(sketch9, [(0, 15), (0, -15), (-17, -15), (-17, 15)])
add_polygon(sketch9, [(-12, -8.5), (-10, -8.5), (-10, 9), (-12, 9)])
sketch9.addConstraint([
    Sketcher.Constraint("Vertical", 0),
    Sketcher.Constraint("Horizontal", 1),
    Sketcher.Constraint("Vertical", 2),
    Sketcher.Constraint("Horizontal", 3),
    Sketcher.Constraint("Horizontal", 4),
    Sketcher.Constraint("Vertical", 5),
    Sketcher.Constraint("Horizontal", 6),
    Sketcher.Constraint("Vertical", 7),
    Sketcher.Constraint("Symmetric", 0, 2, 3, 2, -1, 1),
    Sketcher.Constraint("DistanceX", 1, 2, 1, 1, Q("17 mm")),
    Sketcher.Constraint("DistanceX", 4, 1, 4, 2, Q("2 mm")),
    Sketcher.Constraint("DistanceY", 0, 2, 0, 1, Q("30 mm")),
    Sketcher.Constraint("DistanceY", 5, 1, 5, 2, Q("17.5 mm")),
    Sketcher.Constraint("DistanceX", 4, 2, -1, 1, Q("10 mm")),
    Sketcher.Constraint("DistanceY", -1, 1, 5, 2, Q("9 mm")),
])
sketch9.setExpression("Constraints[17]", "Params.sketch9_width")
sketch9.setExpression("Constraints[18]", "Params.sketch9_width2")
sketch9.setExpression("Constraints[19]", "Params.sketch9_height")
sketch9.setExpression("Constraints[20]", "Params.sketch9_height2")
pad4 = body.newObject("PartDesign::Pad", "Pad003")
pad4.Profile = sketch9
pad4.setExpression("Length", "Params.pad4_length")
pad4.Reversed = True

sketch10 = body.newObject("Sketcher::SketchObject", "Sketch009")
sketch10.AttachmentSupport = (doc.getObject("YZ_Plane"), [""])
sketch10.MapMode = "FlatFace"
sketch10.AttachmentOffset = App.Placement(V(0, 0, -32.446515), App.Rotation())
add_polygon(sketch10, [(7.5, 18.5), (7.5, -18.5), (-29.5, -18.5), (-29.5, 18.5)])
sketch10.addGeometry(Part.Circle(V(2.5, -13, 0), V(0, 0, 1), 2), False)
sketch10.addGeometry(Part.Circle(V(-24.5, -13, 0), V(0, 0, 1), 2), False)
sketch10.addGeometry(Part.Circle(V(2.5, 13, 0), V(0, 0, 1), 2), False)
sketch10.addGeometry(Part.Circle(V(-24.5, 13, 0), V(0, 0, 1), 2), False)
sketch10.addConstraint([
    Sketcher.Constraint("Vertical", 0),
    Sketcher.Constraint("Horizontal", 1),
    Sketcher.Constraint("Vertical", 2),
    Sketcher.Constraint("Horizontal", 3),
    Sketcher.Constraint("Equal", 4, 5),
    Sketcher.Constraint("Equal", 5, 6),
    Sketcher.Constraint("Equal", 6, 7),
    Sketcher.Constraint("Horizontal", 4, 3, 5, 3),
    Sketcher.Constraint("Horizontal", 6, 3, 7, 3),
    Sketcher.Constraint("Vertical", 4, 3, 6, 3),
    Sketcher.Constraint("Vertical", 5, 3, 7, 3),
    Sketcher.Constraint("Equal", 3, 0),
    Sketcher.Constraint("Diameter", 4, Q("4 mm")),
    Sketcher.Constraint("DistanceX", 1, 2, 1, 1, Q("37 mm")),
    Sketcher.Constraint("DistanceX", 5, 3, 4, 3, Q("27 mm")),
    Sketcher.Constraint("DistanceY", 4, 3, 6, 3, Q("26 mm")),
    Sketcher.Constraint("DistanceX", 4, 3, 0, 2, Q("5 mm")),
    Sketcher.Constraint("DistanceY", 0, 2, 4, 3, Q("5.5 mm")),
    Sketcher.Constraint("DistanceX", -1, 1, 4, 3, Q("2.487617 mm")),
    Sketcher.Constraint("DistanceY", 4, 3, -1, 1, Q("12.958585 mm")),
])
sketch10.setExpression("Constraints[16]", "Params.sketch10_diameter")
sketch10.setExpression("Constraints[17]", "Params.sketch10_width")
pad5 = body.newObject("PartDesign::Pad", "Pad004")
pad5.Profile = sketch10
pad5.setExpression("Length", "Params.pad5_length")
pad5.Reversed = True

sketch11 = body.newObject("Sketcher::SketchObject", "Sketch010")
sketch11.AttachmentSupport = (doc.getObject("YZ_Plane"), [""])
sketch11.MapMode = "FlatFace"
sketch11.AttachmentOffset = App.Placement(V(0, 0, -27.446515), App.Rotation())
add_polygon(sketch11, [(-10, 9), (-10, -8.5), (-12, -8.5), (-12, 9)])
sketch11.addConstraint([
    Sketcher.Constraint("Vertical", 0),
    Sketcher.Constraint("Horizontal", 1),
    Sketcher.Constraint("Vertical", 2),
    Sketcher.Constraint("Horizontal", 3),
    Sketcher.Constraint("DistanceX", 1, 2, 1, 1, Q("2 mm")),
    Sketcher.Constraint("DistanceY", 0, 2, 0, 1, Q("17.5 mm")),
    Sketcher.Constraint("DistanceX", 0, 2, -1, 1, Q("10 mm")),
    Sketcher.Constraint("DistanceY", -1, 1, 2, 2, Q("9 mm")),
])
sketch11.setExpression("Constraints[8]", "Params.sketch11_width")
sketch11.setExpression("Constraints[9]", "Params.sketch11_height")
pocket6 = body.newObject("PartDesign::Pocket", "Pocket005")
pocket6.Profile = sketch11
pocket6.Type = "ThroughAll"
pocket6.Reversed = True

doc.recompute()
